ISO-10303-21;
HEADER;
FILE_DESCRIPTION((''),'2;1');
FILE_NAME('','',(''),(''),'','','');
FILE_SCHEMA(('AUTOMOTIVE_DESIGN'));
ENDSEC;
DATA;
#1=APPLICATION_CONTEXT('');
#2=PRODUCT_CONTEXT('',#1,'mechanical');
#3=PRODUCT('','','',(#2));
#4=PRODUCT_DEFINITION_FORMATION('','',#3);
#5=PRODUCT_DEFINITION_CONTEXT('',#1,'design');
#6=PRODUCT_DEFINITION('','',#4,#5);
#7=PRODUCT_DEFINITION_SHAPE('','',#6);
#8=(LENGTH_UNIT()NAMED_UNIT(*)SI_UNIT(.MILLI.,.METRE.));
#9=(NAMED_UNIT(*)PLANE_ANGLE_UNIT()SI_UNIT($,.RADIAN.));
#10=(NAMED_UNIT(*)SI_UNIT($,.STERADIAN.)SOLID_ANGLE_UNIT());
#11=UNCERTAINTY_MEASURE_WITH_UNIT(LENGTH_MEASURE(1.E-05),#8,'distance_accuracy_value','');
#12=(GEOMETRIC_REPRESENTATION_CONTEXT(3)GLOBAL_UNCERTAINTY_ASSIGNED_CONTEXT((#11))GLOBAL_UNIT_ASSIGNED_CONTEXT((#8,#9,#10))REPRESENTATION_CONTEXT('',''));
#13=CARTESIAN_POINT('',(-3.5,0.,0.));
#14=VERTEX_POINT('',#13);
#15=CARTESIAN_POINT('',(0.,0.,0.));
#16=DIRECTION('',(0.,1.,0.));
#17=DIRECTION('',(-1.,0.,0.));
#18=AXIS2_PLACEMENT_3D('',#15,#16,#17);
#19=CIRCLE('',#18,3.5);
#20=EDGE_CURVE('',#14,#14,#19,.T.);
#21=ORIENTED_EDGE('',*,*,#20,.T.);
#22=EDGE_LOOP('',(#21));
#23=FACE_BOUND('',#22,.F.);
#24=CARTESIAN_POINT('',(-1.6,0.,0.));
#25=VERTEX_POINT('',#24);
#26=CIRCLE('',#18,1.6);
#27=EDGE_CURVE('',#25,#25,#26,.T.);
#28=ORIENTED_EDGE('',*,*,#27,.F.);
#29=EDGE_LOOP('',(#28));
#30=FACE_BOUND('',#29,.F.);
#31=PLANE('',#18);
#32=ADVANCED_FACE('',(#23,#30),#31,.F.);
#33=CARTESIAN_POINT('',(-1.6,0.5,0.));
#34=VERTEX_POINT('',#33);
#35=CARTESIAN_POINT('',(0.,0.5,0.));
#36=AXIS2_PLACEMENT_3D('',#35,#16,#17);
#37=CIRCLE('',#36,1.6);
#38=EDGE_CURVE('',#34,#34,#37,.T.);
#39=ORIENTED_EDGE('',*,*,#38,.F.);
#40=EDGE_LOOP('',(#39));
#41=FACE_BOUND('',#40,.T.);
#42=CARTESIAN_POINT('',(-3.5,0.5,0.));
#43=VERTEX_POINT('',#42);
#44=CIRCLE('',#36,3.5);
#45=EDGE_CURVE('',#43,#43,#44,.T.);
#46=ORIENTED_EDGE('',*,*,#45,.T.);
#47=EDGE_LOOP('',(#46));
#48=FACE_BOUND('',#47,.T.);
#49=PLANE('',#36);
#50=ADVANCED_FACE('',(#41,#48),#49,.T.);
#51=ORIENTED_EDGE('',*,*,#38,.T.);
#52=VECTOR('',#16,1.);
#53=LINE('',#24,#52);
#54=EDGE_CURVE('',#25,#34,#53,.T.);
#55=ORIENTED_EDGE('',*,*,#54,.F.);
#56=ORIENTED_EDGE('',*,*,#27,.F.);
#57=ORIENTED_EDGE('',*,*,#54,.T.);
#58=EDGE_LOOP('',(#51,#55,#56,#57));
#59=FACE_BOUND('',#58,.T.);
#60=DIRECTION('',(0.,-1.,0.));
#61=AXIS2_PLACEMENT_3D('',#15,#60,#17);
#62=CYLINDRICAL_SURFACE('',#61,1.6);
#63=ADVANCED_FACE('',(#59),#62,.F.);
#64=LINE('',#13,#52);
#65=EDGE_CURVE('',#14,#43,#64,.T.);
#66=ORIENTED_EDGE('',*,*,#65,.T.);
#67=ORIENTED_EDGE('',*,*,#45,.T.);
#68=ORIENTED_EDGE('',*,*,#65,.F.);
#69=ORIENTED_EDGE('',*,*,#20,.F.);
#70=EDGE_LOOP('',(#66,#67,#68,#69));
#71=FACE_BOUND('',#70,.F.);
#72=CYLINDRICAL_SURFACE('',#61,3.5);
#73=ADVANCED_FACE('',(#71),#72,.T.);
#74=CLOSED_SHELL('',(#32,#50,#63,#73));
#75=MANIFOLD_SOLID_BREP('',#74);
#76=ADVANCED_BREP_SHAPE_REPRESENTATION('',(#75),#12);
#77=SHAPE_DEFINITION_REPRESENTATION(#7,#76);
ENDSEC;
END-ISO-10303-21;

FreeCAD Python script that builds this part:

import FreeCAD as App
import Part
import Sketcher
from FreeCAD import Vector

doc = App.newDocument("Part")
params = doc.addObject("Spreadsheet::Sheet", "Params")
for row, (alias, value) in enumerate([
    ("sketch1_diameter", "7 mm"),
    ("sketch1_diameter2", "3.2 mm"),
    ("pad1_length", "0.5 mm"),
], start=1):
    params.set(f"A{row}", alias)
    params.set(f"B{row}", "=" + value)
    params.setAlias(f"B{row}", alias)

body = doc.addObject("PartDesign::Body", "Body")

# Sketch on XZ plane
sketch1 = doc.addObject("Sketcher::SketchObject", "Sketch")
body.addObject(sketch1)
sketch1.AttachmentSupport = (doc.XZ_Plane, [""])
sketch1.MapMode = "FlatFace"
sketch1.addGeometry(Part.Circle(Vector(0, 0, 0), Vector(0, 0, 1), 3.5), False)
sketch1.addGeometry(Part.Circle(Vector(0, 0, 0), Vector(0, 0, 1), 1.6), False)
sketch1.addConstraint(Sketcher.Constraint("Coincident", 0, 3, -1, 1))
sketch1.addConstraint(Sketcher.Constraint("Coincident", 1, 3, -1, 1))
sketch1.addConstraint(Sketcher.Constraint("Diameter", 0, 7.0))
sketch1.addConstraint(Sketcher.Constraint("Diameter", 1, 3.2))
sketch1.setExpression("Constraints[2]", "Params.sketch1_diameter")
sketch1.setExpression("Constraints[3]", "Params.sketch1_diameter2")
pad1 = doc.addObject("PartDesign::Pad", "Pad")
body.addObject(pad1)
pad1.Profile = sketch1
pad1.setExpression("Length", "Params.pad1_length")
pad1.Reversed = True

doc.recompute()
